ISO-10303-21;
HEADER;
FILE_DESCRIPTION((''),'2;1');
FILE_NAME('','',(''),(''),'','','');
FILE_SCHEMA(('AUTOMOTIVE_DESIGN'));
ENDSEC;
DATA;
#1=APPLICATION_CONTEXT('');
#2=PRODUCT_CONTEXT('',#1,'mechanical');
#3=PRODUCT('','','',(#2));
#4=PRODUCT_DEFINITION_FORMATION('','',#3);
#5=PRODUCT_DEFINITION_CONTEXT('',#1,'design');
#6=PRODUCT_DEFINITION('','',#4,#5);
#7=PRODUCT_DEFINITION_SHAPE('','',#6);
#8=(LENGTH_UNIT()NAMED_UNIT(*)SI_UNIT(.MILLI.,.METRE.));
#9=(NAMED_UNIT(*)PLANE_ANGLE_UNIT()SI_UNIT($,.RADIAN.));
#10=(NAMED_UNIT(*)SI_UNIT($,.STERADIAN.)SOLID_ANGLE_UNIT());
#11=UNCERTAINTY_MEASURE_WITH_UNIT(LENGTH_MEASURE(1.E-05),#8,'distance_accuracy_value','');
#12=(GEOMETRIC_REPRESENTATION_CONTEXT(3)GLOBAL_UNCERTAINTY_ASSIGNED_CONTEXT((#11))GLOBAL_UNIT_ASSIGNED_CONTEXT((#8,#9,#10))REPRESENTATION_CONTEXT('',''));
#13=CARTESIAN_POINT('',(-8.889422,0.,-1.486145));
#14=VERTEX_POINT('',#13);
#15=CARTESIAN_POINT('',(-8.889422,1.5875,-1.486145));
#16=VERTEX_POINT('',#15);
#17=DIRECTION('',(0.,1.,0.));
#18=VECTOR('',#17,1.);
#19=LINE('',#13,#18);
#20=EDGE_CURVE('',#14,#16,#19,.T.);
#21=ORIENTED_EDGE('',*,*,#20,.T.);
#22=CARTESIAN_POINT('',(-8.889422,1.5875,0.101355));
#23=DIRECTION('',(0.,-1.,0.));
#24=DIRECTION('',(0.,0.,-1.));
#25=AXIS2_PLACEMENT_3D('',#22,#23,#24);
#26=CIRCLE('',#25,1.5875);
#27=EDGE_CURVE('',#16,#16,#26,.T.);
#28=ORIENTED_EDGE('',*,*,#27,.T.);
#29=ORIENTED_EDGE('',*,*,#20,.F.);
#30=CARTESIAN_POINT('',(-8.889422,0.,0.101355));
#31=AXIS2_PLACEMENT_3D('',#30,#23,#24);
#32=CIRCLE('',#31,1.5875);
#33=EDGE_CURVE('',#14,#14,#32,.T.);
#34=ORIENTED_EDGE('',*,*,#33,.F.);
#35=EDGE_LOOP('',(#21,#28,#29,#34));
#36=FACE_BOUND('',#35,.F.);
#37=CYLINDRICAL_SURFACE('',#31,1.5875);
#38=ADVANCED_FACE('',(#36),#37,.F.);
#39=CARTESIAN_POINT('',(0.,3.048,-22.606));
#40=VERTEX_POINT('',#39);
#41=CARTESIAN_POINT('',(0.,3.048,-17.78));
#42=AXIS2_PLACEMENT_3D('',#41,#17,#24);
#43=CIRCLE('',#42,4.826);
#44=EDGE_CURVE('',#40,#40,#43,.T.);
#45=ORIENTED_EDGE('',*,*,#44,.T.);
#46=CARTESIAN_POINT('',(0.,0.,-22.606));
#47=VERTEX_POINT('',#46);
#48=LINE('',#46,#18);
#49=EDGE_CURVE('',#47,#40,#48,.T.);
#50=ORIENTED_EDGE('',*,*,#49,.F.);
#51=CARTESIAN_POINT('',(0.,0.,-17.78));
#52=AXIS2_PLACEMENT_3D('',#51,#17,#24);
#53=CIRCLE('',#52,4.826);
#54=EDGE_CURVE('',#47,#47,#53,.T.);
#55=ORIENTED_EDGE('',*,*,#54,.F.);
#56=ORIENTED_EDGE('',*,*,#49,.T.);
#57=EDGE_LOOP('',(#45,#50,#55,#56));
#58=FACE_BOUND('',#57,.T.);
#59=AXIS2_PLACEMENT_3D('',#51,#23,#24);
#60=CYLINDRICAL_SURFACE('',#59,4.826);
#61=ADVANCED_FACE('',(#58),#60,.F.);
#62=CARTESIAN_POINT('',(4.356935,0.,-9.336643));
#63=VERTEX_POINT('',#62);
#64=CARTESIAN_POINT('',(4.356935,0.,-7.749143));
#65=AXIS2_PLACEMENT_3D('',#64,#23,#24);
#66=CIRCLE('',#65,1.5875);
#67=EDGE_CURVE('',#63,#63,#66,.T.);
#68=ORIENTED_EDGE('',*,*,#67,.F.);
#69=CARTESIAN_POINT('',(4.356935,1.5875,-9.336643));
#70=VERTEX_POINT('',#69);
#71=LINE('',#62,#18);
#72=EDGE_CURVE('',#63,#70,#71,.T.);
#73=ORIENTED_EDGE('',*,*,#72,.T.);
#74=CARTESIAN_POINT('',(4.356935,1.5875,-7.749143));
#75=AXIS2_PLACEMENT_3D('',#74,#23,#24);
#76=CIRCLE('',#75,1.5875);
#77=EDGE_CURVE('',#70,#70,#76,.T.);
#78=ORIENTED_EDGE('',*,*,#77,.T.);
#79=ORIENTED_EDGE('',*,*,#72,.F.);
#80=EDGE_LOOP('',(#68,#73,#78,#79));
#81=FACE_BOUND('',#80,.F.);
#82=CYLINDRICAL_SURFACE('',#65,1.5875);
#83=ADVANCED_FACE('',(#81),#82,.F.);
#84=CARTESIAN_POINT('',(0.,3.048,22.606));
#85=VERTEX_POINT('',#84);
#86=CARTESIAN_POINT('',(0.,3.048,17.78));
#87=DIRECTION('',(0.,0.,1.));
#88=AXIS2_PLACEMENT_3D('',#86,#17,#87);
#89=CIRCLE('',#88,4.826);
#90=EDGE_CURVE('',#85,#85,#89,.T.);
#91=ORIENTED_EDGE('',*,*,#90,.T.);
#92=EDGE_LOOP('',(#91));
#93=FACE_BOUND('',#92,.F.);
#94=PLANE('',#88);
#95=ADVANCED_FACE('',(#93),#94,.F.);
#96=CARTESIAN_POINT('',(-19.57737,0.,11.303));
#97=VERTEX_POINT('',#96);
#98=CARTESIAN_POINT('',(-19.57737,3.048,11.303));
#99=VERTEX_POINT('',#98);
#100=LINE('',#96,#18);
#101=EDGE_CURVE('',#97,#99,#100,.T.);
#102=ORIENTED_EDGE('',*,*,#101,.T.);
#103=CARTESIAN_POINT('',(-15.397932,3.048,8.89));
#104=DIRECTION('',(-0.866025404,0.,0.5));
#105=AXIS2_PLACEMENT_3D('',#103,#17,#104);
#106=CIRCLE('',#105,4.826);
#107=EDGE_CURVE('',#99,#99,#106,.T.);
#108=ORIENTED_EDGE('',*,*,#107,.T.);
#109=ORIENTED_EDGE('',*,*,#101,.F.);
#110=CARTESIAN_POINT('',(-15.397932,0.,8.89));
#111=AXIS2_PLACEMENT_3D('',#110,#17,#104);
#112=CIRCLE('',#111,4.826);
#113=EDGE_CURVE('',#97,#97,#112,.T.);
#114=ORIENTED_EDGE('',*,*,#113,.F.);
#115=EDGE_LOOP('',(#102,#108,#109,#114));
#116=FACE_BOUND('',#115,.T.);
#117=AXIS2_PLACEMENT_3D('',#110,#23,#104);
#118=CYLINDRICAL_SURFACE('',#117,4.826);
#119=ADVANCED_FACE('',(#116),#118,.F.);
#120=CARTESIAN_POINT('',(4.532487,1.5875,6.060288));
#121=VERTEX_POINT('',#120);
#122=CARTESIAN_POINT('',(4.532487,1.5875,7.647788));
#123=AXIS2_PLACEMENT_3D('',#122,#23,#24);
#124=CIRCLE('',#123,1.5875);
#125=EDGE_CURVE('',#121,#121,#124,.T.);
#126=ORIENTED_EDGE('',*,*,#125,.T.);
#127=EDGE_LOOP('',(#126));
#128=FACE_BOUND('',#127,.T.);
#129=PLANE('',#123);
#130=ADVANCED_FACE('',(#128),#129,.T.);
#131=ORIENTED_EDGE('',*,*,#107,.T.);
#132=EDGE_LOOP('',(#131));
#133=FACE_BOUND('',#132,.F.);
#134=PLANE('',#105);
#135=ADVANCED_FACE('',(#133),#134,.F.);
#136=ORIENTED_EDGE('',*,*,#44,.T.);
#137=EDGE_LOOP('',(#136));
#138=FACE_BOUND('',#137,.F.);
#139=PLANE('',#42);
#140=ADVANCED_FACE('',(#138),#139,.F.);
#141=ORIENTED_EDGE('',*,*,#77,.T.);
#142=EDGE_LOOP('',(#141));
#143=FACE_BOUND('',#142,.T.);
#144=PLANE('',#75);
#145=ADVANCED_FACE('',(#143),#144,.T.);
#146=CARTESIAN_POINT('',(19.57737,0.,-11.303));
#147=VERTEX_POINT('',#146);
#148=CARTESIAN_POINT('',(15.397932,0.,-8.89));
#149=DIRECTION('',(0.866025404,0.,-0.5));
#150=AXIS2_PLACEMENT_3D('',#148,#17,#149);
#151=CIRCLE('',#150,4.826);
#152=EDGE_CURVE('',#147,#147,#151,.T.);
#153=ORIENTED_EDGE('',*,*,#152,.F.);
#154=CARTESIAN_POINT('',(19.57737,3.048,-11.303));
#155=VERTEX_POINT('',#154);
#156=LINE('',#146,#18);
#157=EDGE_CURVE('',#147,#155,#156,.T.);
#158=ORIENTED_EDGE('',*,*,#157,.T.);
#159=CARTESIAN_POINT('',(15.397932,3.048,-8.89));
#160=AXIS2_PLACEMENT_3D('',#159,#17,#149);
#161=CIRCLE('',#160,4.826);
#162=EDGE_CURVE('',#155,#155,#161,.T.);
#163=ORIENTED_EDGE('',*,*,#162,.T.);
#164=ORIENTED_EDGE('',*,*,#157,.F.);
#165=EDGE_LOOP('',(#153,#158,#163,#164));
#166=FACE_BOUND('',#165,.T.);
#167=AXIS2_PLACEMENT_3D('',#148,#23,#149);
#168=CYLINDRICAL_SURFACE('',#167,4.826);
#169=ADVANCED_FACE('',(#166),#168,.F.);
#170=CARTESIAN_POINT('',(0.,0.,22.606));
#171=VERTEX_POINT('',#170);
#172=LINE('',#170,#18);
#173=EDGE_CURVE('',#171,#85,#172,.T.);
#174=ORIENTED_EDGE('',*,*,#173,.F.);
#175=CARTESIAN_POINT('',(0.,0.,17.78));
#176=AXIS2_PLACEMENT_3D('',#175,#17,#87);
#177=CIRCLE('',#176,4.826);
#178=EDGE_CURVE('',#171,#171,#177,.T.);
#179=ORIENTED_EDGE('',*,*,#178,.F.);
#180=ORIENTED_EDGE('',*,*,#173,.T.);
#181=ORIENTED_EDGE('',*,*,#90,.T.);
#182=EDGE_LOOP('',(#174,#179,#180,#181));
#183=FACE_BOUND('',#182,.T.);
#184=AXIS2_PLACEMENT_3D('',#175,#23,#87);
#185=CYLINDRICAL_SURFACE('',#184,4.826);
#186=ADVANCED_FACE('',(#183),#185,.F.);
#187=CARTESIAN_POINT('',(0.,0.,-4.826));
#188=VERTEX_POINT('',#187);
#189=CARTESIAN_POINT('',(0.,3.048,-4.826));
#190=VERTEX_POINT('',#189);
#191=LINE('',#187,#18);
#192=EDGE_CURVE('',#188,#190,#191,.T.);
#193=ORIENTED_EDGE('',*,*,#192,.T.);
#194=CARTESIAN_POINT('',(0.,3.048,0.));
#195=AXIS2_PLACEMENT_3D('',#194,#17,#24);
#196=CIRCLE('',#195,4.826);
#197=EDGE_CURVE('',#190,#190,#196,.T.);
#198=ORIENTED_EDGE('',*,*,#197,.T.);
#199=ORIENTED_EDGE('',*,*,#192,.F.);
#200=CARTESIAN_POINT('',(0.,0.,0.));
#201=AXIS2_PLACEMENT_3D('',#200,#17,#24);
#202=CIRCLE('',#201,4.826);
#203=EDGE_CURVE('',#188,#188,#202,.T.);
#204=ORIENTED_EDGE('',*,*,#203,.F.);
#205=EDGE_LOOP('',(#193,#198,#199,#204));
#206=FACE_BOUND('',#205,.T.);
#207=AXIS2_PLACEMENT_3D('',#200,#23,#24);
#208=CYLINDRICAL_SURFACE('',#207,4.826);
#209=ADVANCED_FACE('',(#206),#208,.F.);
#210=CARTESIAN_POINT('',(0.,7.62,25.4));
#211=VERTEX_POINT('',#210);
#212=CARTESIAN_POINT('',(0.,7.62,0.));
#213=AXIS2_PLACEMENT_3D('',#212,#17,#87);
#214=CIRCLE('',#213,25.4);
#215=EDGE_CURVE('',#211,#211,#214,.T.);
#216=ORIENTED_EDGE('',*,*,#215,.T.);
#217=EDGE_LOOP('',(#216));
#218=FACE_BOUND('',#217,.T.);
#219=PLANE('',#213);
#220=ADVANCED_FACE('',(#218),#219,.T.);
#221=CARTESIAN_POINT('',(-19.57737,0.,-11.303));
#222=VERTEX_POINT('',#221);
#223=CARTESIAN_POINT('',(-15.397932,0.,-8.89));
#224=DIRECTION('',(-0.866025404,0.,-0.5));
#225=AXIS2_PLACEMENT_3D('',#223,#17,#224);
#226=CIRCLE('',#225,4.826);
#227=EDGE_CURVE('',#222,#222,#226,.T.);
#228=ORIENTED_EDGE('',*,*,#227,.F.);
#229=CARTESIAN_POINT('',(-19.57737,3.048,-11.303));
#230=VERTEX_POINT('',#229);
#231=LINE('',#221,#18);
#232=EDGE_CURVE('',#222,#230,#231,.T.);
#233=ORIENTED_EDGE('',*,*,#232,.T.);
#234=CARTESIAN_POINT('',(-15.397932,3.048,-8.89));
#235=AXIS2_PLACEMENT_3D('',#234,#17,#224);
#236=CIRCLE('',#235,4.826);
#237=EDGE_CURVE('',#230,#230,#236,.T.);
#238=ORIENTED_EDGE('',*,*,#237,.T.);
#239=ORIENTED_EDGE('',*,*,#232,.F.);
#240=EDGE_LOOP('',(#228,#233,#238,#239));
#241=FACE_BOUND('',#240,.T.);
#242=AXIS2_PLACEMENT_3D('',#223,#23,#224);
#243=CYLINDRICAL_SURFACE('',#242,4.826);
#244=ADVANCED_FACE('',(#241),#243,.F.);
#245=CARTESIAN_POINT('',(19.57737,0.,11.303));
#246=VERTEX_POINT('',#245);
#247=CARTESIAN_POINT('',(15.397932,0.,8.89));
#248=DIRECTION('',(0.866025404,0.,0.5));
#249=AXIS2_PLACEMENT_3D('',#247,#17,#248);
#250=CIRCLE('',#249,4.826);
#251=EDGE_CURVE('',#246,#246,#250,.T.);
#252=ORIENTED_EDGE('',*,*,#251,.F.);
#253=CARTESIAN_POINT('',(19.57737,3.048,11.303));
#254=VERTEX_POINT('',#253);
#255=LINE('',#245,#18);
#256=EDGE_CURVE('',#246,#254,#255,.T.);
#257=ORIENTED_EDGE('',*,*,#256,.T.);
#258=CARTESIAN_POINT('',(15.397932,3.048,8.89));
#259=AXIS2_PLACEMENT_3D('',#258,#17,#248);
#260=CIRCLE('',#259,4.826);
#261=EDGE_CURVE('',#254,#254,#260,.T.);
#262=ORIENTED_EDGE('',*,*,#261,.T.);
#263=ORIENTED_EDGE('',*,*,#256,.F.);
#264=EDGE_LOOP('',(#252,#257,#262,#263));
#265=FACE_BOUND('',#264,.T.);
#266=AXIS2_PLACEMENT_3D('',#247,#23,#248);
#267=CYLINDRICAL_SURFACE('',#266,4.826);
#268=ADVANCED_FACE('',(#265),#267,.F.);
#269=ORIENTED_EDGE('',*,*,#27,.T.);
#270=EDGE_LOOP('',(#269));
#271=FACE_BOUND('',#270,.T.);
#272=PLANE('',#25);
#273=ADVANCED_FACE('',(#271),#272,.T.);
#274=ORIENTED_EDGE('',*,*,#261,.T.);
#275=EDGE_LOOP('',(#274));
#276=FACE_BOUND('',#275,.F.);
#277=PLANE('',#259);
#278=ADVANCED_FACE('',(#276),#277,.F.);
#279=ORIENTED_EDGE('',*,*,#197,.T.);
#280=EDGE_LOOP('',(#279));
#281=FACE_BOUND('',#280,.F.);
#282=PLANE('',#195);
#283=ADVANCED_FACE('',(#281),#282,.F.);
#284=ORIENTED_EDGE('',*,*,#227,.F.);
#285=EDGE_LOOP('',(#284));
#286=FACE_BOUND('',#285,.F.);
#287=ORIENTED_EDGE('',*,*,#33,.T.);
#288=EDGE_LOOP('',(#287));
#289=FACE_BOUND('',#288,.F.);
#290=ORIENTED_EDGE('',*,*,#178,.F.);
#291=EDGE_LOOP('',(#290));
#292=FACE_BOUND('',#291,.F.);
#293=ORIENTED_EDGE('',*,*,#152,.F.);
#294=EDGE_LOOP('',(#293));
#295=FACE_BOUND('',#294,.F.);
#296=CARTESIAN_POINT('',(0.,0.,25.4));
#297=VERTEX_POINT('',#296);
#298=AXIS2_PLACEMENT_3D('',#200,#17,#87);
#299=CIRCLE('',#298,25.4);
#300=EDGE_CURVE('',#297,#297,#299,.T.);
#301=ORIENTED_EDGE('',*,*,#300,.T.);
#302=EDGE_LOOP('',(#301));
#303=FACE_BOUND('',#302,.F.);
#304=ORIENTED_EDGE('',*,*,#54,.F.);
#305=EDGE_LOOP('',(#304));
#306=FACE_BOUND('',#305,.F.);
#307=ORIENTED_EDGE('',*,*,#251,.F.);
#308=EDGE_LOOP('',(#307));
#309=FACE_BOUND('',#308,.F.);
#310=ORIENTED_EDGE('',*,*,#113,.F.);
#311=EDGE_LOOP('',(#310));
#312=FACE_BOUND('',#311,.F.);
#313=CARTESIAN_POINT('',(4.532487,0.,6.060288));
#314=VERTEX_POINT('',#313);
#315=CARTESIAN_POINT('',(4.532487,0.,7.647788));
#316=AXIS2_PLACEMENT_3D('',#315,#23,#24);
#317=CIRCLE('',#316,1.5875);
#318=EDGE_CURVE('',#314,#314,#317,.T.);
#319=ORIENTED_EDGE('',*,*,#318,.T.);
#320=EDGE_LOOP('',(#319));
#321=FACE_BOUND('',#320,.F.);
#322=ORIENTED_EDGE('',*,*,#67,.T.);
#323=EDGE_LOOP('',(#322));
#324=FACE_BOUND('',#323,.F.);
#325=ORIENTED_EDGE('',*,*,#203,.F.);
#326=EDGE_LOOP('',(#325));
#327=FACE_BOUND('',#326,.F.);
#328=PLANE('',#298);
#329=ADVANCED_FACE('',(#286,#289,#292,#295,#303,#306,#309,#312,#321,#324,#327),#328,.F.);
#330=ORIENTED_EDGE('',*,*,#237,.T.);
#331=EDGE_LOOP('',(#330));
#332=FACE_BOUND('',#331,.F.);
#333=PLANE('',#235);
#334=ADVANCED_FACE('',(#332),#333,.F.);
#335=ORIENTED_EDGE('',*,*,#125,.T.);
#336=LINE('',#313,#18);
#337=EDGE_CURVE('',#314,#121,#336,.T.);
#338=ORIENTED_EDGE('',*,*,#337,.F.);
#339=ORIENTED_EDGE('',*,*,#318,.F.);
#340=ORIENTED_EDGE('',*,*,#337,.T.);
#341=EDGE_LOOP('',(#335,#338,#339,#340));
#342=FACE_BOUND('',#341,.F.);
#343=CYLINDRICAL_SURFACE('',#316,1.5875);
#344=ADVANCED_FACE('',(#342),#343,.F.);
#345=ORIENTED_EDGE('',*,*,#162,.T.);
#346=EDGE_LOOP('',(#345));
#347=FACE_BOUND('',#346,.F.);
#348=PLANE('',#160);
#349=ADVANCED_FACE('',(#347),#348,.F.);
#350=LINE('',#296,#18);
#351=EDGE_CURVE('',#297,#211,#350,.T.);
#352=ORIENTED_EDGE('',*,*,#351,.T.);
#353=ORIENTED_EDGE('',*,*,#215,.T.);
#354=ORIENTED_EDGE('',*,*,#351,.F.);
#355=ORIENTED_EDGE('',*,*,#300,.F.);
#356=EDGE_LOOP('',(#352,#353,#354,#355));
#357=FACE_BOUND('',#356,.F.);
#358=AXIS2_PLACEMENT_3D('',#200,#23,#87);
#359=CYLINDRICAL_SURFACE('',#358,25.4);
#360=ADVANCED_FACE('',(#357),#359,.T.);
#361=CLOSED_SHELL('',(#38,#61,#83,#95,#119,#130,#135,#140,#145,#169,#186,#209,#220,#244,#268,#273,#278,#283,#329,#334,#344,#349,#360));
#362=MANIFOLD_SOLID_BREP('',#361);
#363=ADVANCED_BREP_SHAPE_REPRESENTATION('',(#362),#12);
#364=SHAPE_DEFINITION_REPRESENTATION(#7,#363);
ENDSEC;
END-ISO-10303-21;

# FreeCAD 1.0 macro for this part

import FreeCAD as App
import Part
import Sketcher
Q = App.Units.Quantity

doc = App.newDocument("Part")
body = doc.addObject("PartDesign::Body", "Body")

# Sketch on XZ plane
sketch1 = doc.addObject("Sketcher::SketchObject", "Sketch")
body.addObject(sketch1)
sketch1.AttachmentSupport = (doc.XZ_Plane, [""])
sketch1.MapMode = "FlatFace"
sketch1.addGeometry(Part.Circle(App.Vector(0, 0, 0), App.Vector(0, 0, 1), 25), False)
sketch1.addConstraint([
    Sketcher.Constraint("Coincident", 0, 3, -1, 1),
    Sketcher.Constraint("Diameter", 0, Q("2 in")),
])
pad1 = doc.addObject("PartDesign::Pad", "Pad")
body.addObject(pad1)
pad1.Profile = sketch1
pad1.Length = Q("0.3 in")
pad1.Reversed = True

# Sketch on XZ plane
sketch2 = doc.addObject("Sketcher::SketchObject", "Sketch001")
body.addObject(sketch2)
sketch2.AttachmentSupport = (doc.XZ_Plane, [""])
sketch2.MapMode = "FlatFace"
sketch2.addGeometry(Part.Circle(App.Vector(0, -17.8, 0), App.Vector(0, 0, 1), 4.8), False)
sketch2.addConstraint([
    Sketcher.Constraint("PointOnObject", 0, 3, -2),
    Sketcher.Constraint("Diameter", 0, Q("0.38 in")),
    Sketcher.Constraint("DistanceY", 0, 3, -1, 1, Q("0.7 in")),
])
pocket1 = doc.addObject("PartDesign::Pocket", "Pocket")
body.addObject(pocket1)
pocket1.Profile = sketch2
pocket1.Length = Q("0.12 in")
doc.recompute()

polarpattern = doc.addObject("PartDesign::PolarPattern", "PolarPattern")
body.addObject(polarpattern)
polarpattern.Originals = [pocket1]
polarpattern.Axis = (doc.Y_Axis, [""])
polarpattern.Angle = 360
polarpattern.Occurrences = 6
body.Tip = polarpattern

# Sketch on XZ plane
sketch3 = doc.addObject("Sketcher::SketchObject", "Sketch002")
body.addObject(sketch3)
sketch3.AttachmentSupport = (doc.XZ_Plane, [""])
sketch3.MapMode = "FlatFace"
sketch3.addGeometry(Part.Circle(App.Vector(0, 0, 0), App.Vector(0, 0, 1), 4.8), False)
sketch3.addConstraint([
    Sketcher.Constraint("Coincident", 0, 3, -1, 1),
    Sketcher.Constraint("Diameter", 0, Q("0.38 in")),
])
pocket2 = doc.addObject("PartDesign::Pocket", "Pocket001")
body.addObject(pocket2)
pocket2.Profile = sketch3
pocket2.Length = Q("0.12 in")

# Sketch on XZ plane
sketch4 = doc.addObject("Sketcher::SketchObject", "Sketch003")
body.addObject(sketch4)
sketch4.AttachmentSupport = (doc.XZ_Plane, [""])
sketch4.MapMode = "FlatFace"
sketch4.addGeometry([
    Part.Circle(App.Vector(4.5, 7.6, 0), App.Vector(0, 0, 1), 1.6),
    Part.Circle(App.Vector(4.4, -7.7, 0), App.Vector(0, 0, 1), 1.6),
    Part.Circle(App.Vector(-8.9, 0.1, 0), App.Vector(0, 0, 1), 1.6),
], False)
sketch4.addConstraint([
    Sketcher.Constraint("Equal", 0, 1),
    Sketcher.Constraint("Equal", 1, 2),
    Sketcher.Constraint("Diameter", 0, Q("0.125 in")),
    Sketcher.Constraint("DistanceY", -1, 1, 0, 3, Q("7.647788 mm")),
    Sketcher.Constraint("DistanceX", 1, 3, 0, 3, Q("0.175551 mm")),
    Sketcher.Constraint("DistanceY", 1, 3, 0, 3, Q("15.396931 mm")),
    Sketcher.Constraint("DistanceX", 2, 3, 0, 3, Q("13.421909 mm")),
    Sketcher.Constraint("DistanceX", -1, 1, 0, 3, Q("4.532487 mm")),
    Sketcher.Constraint("DistanceY", -1, 1, 2, 3, Q("0.101355 mm")),
])
pocket3 = doc.addObject("PartDesign::Pocket", "Pocket002")
body.addObject(pocket3)
pocket3.Profile = sketch4
pocket3.Length = Q("0.0625 in")

doc.recompute()
